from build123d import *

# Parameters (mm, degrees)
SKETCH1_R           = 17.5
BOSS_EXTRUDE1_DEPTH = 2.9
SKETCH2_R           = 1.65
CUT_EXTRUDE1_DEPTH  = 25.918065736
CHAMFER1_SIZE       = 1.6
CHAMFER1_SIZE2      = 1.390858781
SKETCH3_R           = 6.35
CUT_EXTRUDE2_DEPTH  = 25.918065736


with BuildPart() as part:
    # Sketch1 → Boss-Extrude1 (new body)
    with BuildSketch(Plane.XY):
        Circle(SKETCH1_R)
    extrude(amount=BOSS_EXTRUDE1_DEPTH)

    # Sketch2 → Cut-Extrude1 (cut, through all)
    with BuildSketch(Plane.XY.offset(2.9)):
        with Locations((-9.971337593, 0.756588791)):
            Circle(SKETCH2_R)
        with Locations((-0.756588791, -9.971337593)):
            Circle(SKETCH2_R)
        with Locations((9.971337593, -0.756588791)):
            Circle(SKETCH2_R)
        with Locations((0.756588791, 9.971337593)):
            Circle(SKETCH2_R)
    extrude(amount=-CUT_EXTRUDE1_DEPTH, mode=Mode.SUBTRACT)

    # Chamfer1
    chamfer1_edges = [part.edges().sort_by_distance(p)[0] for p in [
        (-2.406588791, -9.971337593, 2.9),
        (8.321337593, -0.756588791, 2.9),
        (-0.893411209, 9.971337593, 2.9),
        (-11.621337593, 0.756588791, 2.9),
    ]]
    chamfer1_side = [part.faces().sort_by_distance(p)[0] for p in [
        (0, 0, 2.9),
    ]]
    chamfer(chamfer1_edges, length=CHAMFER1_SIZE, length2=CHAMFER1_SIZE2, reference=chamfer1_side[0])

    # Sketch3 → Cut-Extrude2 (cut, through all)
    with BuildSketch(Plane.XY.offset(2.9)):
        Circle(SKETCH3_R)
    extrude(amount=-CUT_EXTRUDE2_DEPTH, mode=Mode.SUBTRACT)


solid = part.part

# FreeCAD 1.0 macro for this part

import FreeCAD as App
import Part
import Sketcher
Q = App.Units.Quantity


def edges_at(feature, points):
    """Names of the edges that pass closest to the given points."""
    edges = feature.Shape.Edges
    near = lambda p: min(range(len(edges)), key=lambda i: edges[i].distToShape(Part.Vertex(*p))[0])
    return sorted({f"Edge{near(p) + 1}" for p in points})

doc = App.newDocument("Part")
body = doc.addObject("PartDesign::Body", "Body")

# Sketch on XY plane
sketch1 = body.newObject("Sketcher::SketchObject", "Sketch")
sketch1.AttachmentSupport = (doc.getObject("XY_Plane"), [""])
sketch1.MapMode = "FlatFace"
sketch1.addGeometry(Part.Circle(App.Vector(0, 0, 0), App.Vector(0, 0, 1), 18), False)
sketch1.addConstraint([
    Sketcher.Constraint("Coincident", 0, 3, -1, 1),
    Sketcher.Constraint("Diameter", 0, Q("35 mm")),
])
pad1 = body.newObject("PartDesign::Pad", "Pad")
pad1.Profile = sketch1
pad1.Length = 2.9

# Sketch on XY plane
sketch2 = body.newObject("Sketcher::SketchObject", "Sketch001")
sketch2.AttachmentSupport = (doc.getObject("XY_Plane"), [""])
sketch2.MapMode = "FlatFace"
sketch2.AttachmentOffset = App.Placement(App.Vector(0, 0, 2.9), App.Rotation())
sketch2.addGeometry([
    Part.Circle(App.Vector(-10, 0.8, 0), App.Vector(0, 0, 1), 1.6),
    Part.Circle(App.Vector(-0.8, -10, 0), App.Vector(0, 0, 1), 1.6),
    Part.Circle(App.Vector(10, -0.8, 0), App.Vector(0, 0, 1), 1.6),
    Part.Circle(App.Vector(0.8, 10, 0), App.Vector(0, 0, 1), 1.6),
], False)
sketch2.addConstraint([
    Sketcher.Constraint("Equal", 0, 1),
    Sketcher.Constraint("Equal", 1, 2),
    Sketcher.Constraint("Equal", 2, 3),
    Sketcher.Constraint("Symmetric", 0, 3, 2, 3, -1, 1),
    Sketcher.Constraint("Symmetric", 1, 3, 3, 3, -1, 1),
    Sketcher.Constraint("Diameter", 0, Q("3.3 mm")),
    Sketcher.Constraint("DistanceY", -1, 1, 0, 3, Q("0.756589 mm")),
    Sketcher.Constraint("DistanceX", 1, 3, -1, 1, Q("0.756589 mm")),
    Sketcher.Constraint("DistanceX", 0, 3, 1, 3, Q("9.214749 mm")),
    Sketcher.Constraint("DistanceY", 1, 3, 2, 3, Q("9.214749 mm")),
])
pocket1 = body.newObject("PartDesign::Pocket", "Pocket")
pocket1.Profile = sketch2
pocket1.Type = "ThroughAll"
doc.recompute()

chamfer = body.newObject("PartDesign::Chamfer", "Chamfer")
chamfer.Base = (pocket1, edges_at(pocket1, [
    (-2.407, -9.971, 2.9),
    (8.321, -0.757, 2.9),
    (-0.893, 9.971, 2.9),
    (-11.621, 0.757, 2.9),
]))
chamfer.ChamferType = "Two distances"
chamfer.Size = 1.6
chamfer.Size2 = 1.390859

# Sketch on XY plane
sketch3 = body.newObject("Sketcher::SketchObject", "Sketch002")
sketch3.AttachmentSupport = (doc.getObject("XY_Plane"), [""])
sketch3.MapMode = "FlatFace"
sketch3.AttachmentOffset = App.Placement(App.Vector(0, 0, 2.9), App.Rotation())
sketch3.addGeometry(Part.Circle(App.Vector(0, 0, 0), App.Vector(0, 0, 1), 6), False)
sketch3.addConstraint([
    Sketcher.Constraint("Coincident", 0, 3, -1, 1),
    Sketcher.Constraint("Diameter", 0, Q("12.7 mm")),
])
pocket2 = body.newObject("PartDesign::Pocket", "Pocket001")
pocket2.Profile = sketch3
pocket2.Type = "ThroughAll"

doc.recompute()
